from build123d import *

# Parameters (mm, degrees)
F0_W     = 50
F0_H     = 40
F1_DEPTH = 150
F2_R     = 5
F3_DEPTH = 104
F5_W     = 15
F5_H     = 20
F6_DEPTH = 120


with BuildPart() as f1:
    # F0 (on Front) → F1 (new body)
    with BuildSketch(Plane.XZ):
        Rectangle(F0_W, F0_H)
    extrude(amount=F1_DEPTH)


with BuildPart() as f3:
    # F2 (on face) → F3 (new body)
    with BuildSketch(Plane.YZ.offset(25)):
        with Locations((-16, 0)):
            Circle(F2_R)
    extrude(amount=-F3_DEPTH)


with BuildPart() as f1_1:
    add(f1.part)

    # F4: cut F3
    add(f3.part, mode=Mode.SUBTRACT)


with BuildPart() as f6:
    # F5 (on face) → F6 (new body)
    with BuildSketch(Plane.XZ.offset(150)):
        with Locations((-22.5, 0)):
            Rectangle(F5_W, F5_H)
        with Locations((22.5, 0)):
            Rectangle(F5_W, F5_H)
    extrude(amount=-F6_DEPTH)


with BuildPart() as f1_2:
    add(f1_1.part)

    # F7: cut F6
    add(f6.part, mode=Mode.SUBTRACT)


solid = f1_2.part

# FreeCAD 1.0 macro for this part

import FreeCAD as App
import Part
import Sketcher

V = App.Vector
Q = App.Units.Quantity

doc = App.newDocument("Part")
body = doc.addObject("PartDesign::Body", "Body")

# Sketch on XZ plane
sketch1 = body.newObject("Sketcher::SketchObject", "Sketch")
sketch1.AttachmentSupport = (doc.getObject("XZ_Plane"), [""])
sketch1.MapMode = "FlatFace"
sketch1.addGeometry([
    Part.LineSegment(V(-25, 20, 0), V(-25, -20, 0)),
    Part.LineSegment(V(-25, -20, 0), V(25, -20, 0)),
    Part.LineSegment(V(25, -20, 0), V(25, 20, 0)),
    Part.LineSegment(V(25, 20, 0), V(-25, 20, 0)),
], False)
sketch1.addConstraint([
    Sketcher.Constraint("Coincident", 0, 2, 1, 1),
    Sketcher.Constraint("Coincident", 1, 2, 2, 1),
    Sketcher.Constraint("Coincident", 2, 2, 3, 1),
    Sketcher.Constraint("Coincident", 3, 2, 0, 1),
    Sketcher.Constraint("Vertical", 0),
    Sketcher.Constraint("Horizontal", 1),
    Sketcher.Constraint("Vertical", 2),
    Sketcher.Constraint("Horizontal", 3),
    Sketcher.Constraint("Symmetric", 0, 2, 2, 2, -1, 1),
    Sketcher.Constraint("DistanceX", 1, 1, 1, 2, Q("50 mm")),
    Sketcher.Constraint("DistanceY", 0, 2, 0, 1, Q("40 mm")),
])
pad1 = body.newObject("PartDesign::Pad", "Pad")
pad1.Profile = sketch1
pad1.Length = 150
body2 = doc.addObject("PartDesign::Body", "Body001")

# Sketch on YZ plane
sketch2 = body2.newObject("Sketcher::SketchObject", "Sketch001")
sketch2.AttachmentSupport = (doc.getObject("YZ_Plane001"), [""])
sketch2.MapMode = "FlatFace"
sketch2.AttachmentOffset = App.Placement(V(0, 0, 25), App.Rotation())
sketch2.addGeometry(Part.Circle(V(-16, 0, 0), V(0, 0, 1), 5), False)
sketch2.addConstraint([
    Sketcher.Constraint("PointOnObject", 0, 3, -1),
    Sketcher.Constraint("Diameter", 0, Q("10 mm")),
    Sketcher.Constraint("DistanceX", 0, 3, -1, 1, Q("16 mm")),
])
pad2 = body2.newObject("PartDesign::Pad", "Pad001")
pad2.Profile = sketch2
pad2.Length = 104
pad2.Reversed = True
doc.recompute()

boolean = body.newObject("PartDesign::Boolean", "Boolean")
boolean.Type = "Cut"
boolean.addObjects([body2])
body3 = doc.addObject("PartDesign::Body", "Body002")
body3.AllowCompound = True

# Sketch on XZ plane
sketch3 = body3.newObject("Sketcher::SketchObject", "Sketch002")
sketch3.AttachmentSupport = (doc.getObject("XZ_Plane002"), [""])
sketch3.MapMode = "FlatFace"
sketch3.AttachmentOffset = App.Placement(V(0, 0, 150), App.Rotation())
sketch3.addGeometry([
    Part.LineSegment(V(-30, 10, 0), V(-30, -10, 0)),  # 0
    Part.LineSegment(V(-30, -10, 0), V(-15, -10, 0)),  # 1
    Part.LineSegment(V(-15, -10, 0), V(-15, 10, 0)),  # 2
    Part.LineSegment(V(-15, 10, 0), V(-30, 10, 0)),  # 3
    Part.LineSegment(V(15, 10, 0), V(15, -10, 0)),  # 4
    Part.LineSegment(V(15, -10, 0), V(30, -10, 0)),  # 5
    Part.LineSegment(V(30, -10, 0), V(30, 10, 0)),  # 6
    Part.LineSegment(V(30, 10, 0), V(15, 10, 0)),  # 7
], False)
sketch3.addConstraint([
    Sketcher.Constraint("Coincident", 0, 2, 1, 1),
    Sketcher.Constraint("Coincident", 1, 2, 2, 1),
    Sketcher.Constraint("Coincident", 2, 2, 3, 1),
    Sketcher.Constraint("Coincident", 3, 2, 0, 1),
    Sketcher.Constraint("Coincident", 4, 2, 5, 1),
    Sketcher.Constraint("Coincident", 5, 2, 6, 1),
    Sketcher.Constraint("Coincident", 6, 2, 7, 1),
    Sketcher.Constraint("Coincident", 7, 2, 4, 1),
    Sketcher.Constraint("Vertical", 0),
    Sketcher.Constraint("Horizontal", 1),
    Sketcher.Constraint("Vertical", 2),
    Sketcher.Constraint("Horizontal", 3),
    Sketcher.Constraint("Vertical", 4),
    Sketcher.Constraint("Horizontal", 5),
    Sketcher.Constraint("Vertical", 6),
    Sketcher.Constraint("Horizontal", 7),
    Sketcher.Constraint("Symmetric", 2, 2, 4, 2, -1, 1),
    Sketcher.Constraint("Symmetric", 0, 2, 6, 2, -1, 1),
    Sketcher.Constraint("Horizontal", 1, 2, 4, 2),
    Sketcher.Constraint("DistanceX", 1, 1, 1, 2, Q("15 mm")),
    Sketcher.Constraint("DistanceY", 0, 2, 0, 1, Q("20 mm")),
    Sketcher.Constraint("DistanceX", 0, 2, -1, 1, Q("30 mm")),
])
pad3 = body3.newObject("PartDesign::Pad", "Pad002")
pad3.Profile = sketch3
pad3.Length = 120
pad3.Reversed = True
doc.recompute()

boolean2 = body.newObject("PartDesign::Boolean", "Boolean001")
boolean2.Type = "Cut"
boolean2.addObjects([body3])

doc.recompute()
